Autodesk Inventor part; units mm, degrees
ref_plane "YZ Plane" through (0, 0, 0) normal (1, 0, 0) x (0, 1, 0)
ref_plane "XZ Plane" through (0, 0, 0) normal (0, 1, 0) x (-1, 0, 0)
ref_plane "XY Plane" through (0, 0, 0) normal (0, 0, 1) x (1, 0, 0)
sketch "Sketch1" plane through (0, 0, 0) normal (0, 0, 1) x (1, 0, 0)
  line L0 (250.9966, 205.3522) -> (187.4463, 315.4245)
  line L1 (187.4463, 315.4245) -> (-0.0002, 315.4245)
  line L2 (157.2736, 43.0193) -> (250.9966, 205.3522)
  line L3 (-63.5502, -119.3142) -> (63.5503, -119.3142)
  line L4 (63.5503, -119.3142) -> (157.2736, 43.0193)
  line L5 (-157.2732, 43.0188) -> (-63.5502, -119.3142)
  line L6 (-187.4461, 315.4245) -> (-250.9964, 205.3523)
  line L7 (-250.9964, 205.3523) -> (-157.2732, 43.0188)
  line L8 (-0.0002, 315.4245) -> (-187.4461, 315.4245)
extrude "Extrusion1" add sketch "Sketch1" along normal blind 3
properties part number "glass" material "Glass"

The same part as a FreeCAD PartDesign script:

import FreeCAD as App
import Part
import Sketcher

V = App.Vector
Q = App.Units.Quantity

doc = App.newDocument("Part")
body = doc.addObject("PartDesign::Body", "Body")

sketch1 = body.newObject("Sketcher::SketchObject", "Sketch")
sketch1.AttachmentSupport = (doc.getObject("XY_Plane"), [""])
sketch1.MapMode = "FlatFace"
sketch1.addGeometry([
    Part.LineSegment(V(157.2736, 43.0193, 0), V(250.9966, 205.3522, 0)),
    Part.LineSegment(V(250.9966, 205.3522, 0), V(187.4463, 315.4245, 0)),
    Part.LineSegment(V(187.4463, 315.4245, 0), V(-187.4461, 315.4245, 0)),
    Part.LineSegment(V(-187.4461, 315.4245, 0), V(-250.9964, 205.3523, 0)),
    Part.LineSegment(V(-250.9964, 205.3523, 0), V(-157.2732, 43.0188, 0)),
    Part.LineSegment(V(-157.2732, 43.0188, 0), V(-63.5502, -119.3142, 0)),
    Part.LineSegment(V(-63.5502, -119.3142, 0), V(63.5503, -119.3142, 0)),
    Part.LineSegment(V(63.5503, -119.3142, 0), V(157.2736, 43.0193, 0)),
], False)
sketch1.addConstraint([
    Sketcher.Constraint("Coincident", 0, 2, 1, 1),
    Sketcher.Constraint("Coincident", 1, 2, 2, 1),
    Sketcher.Constraint("Coincident", 2, 2, 3, 1),
    Sketcher.Constraint("Coincident", 3, 2, 4, 1),
    Sketcher.Constraint("Coincident", 4, 2, 5, 1),
    Sketcher.Constraint("Coincident", 5, 2, 6, 1),
    Sketcher.Constraint("Coincident", 6, 2, 7, 1),
    Sketcher.Constraint("Coincident", 7, 2, 0, 1),
    Sketcher.Constraint("Horizontal", 2),
    Sketcher.Constraint("Horizontal", 6),
    Sketcher.Constraint("Symmetric", 0, 2, 3, 2, -2),
    Sketcher.Constraint("Parallel", 0, 3),
    Sketcher.Constraint("Parallel", 1, 4),
    Sketcher.Constraint("Parallel", 4, 5),
    Sketcher.Constraint("Parallel", 3, 7),
    Sketcher.Constraint("Equal", 1, 3),
    Sketcher.Constraint("Equal", 0, 5),
    Sketcher.Constraint("Angle", 0, Q("60 deg")),
    Sketcher.Constraint("Distance", 0, Q("187.446 mm")),
    Sketcher.Constraint("DistanceX", 2, 2, 2, 1, Q("374.8924 mm")),
    Sketcher.Constraint("DistanceX", 6, 1, 6, 2, Q("127.1005 mm")),
    Sketcher.Constraint("DistanceX", 3, 2, 0, 2, Q("501.993 mm")),
    Sketcher.Constraint("DistanceY", -1, 1, 0, 2, Q("205.3522 mm")),
])
pad1 = body.newObject("PartDesign::Pad", "Pad")
pad1.Profile = sketch1
pad1.Length = 3

doc.recompute()
